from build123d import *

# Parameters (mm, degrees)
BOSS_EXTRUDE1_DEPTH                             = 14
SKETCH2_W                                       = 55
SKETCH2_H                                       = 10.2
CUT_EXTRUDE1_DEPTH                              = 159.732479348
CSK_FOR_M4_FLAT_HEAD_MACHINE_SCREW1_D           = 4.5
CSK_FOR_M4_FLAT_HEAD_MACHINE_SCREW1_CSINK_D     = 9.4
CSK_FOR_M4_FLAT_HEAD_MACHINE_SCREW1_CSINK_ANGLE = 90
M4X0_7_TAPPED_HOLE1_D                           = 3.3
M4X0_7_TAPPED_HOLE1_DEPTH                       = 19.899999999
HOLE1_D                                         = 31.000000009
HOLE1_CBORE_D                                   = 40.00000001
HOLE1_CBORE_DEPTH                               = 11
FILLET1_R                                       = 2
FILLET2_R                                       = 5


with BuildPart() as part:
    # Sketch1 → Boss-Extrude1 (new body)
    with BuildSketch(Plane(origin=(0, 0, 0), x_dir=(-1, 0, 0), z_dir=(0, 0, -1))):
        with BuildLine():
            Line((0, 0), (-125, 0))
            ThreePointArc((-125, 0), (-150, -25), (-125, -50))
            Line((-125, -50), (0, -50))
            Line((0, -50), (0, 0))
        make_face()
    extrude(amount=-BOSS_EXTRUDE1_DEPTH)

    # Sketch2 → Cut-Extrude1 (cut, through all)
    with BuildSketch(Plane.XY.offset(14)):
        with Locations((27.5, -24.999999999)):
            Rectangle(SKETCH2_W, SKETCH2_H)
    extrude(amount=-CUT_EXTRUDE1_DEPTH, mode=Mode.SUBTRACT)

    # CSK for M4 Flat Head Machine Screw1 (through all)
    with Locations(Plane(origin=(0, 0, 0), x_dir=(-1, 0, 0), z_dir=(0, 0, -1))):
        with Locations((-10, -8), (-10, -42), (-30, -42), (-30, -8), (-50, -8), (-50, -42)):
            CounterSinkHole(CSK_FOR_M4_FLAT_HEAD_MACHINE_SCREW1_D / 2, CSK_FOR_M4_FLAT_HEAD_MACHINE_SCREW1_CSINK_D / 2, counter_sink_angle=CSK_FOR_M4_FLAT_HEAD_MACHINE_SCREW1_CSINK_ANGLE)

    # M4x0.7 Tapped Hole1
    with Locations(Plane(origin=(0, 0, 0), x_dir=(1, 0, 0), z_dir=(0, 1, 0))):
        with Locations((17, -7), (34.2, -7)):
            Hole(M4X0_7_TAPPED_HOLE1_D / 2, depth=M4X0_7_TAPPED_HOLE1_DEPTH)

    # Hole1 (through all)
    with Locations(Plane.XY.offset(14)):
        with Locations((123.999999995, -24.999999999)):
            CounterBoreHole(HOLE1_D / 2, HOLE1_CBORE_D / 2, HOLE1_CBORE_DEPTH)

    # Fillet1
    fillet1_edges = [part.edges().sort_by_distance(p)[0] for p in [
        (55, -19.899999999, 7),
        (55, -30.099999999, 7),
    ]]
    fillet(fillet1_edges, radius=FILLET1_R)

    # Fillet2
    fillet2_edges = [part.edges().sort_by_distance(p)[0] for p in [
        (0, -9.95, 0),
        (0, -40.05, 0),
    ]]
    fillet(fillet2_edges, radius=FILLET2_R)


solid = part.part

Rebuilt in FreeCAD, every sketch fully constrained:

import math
import FreeCAD as App
import Part
import Sketcher
from FreeCAD import Vector
Q = App.Units.Quantity


def edges_at(feature, points):
    """Names of the edges that pass closest to the given points."""
    edges = feature.Shape.Edges
    near = lambda p: min(range(len(edges)), key=lambda i: edges[i].distToShape(Part.Vertex(*p))[0])
    return sorted({f"Edge{near(p) + 1}" for p in points})

doc = App.newDocument("Part")
body = doc.addObject("PartDesign::Body", "Body")

# Sketch on XY plane
sketch1 = body.newObject("Sketcher::SketchObject", "Sketch")
sketch1.AttachmentSupport = (doc.getObject("XY_Plane"), [""])
sketch1.MapMode = "FlatFace"
sketch1.addGeometry([
    Part.LineSegment(Vector(0, 0, 0), Vector(125, 0, 0)),
    Part.ArcOfCircle(Part.Circle(Vector(125, -25, 0), Vector(0, 0, 1), 25), math.radians(-90), math.radians(90)),
    Part.LineSegment(Vector(125, -50, 0), Vector(0, -50, 0)),
    Part.LineSegment(Vector(0, -50, 0), Vector(0, 0, 0)),
], False)
sketch1.addConstraint([
    Sketcher.Constraint("Tangent", 0, 2, 1, 2),
    Sketcher.Constraint("Tangent", 1, 1, 2, 1),
    Sketcher.Constraint("Coincident", 2, 2, 3, 1),
    Sketcher.Constraint("Coincident", 3, 2, 0, 1),
    Sketcher.Constraint("Horizontal", 0),
    Sketcher.Constraint("Horizontal", 2),
    Sketcher.Constraint("Vertical", 3),
    Sketcher.Constraint("Coincident", 3, 2, -1, 1),
    Sketcher.Constraint("Radius", 1, Q("25 mm")),
    Sketcher.Constraint("DistanceX", 0, 1, 0, 2, Q("125 mm")),
])
pad1 = body.newObject("PartDesign::Pad", "Pad")
pad1.Profile = sketch1
pad1.Length = 14

# Sketch on XY plane
sketch2 = body.newObject("Sketcher::SketchObject", "Sketch001")
sketch2.AttachmentSupport = (doc.getObject("XY_Plane"), [""])
sketch2.MapMode = "FlatFace"
sketch2.AttachmentOffset = App.Placement(Vector(0, 0, 14), App.Rotation())
sketch2.addGeometry([
    Part.LineSegment(Vector(0, -20, 0), Vector(0, -30, 0)),
    Part.LineSegment(Vector(0, -30, 0), Vector(55, -30, 0)),
    Part.LineSegment(Vector(55, -30, 0), Vector(55, -20, 0)),
    Part.LineSegment(Vector(55, -20, 0), Vector(0, -20, 0)),
], False)
sketch2.addConstraint([
    Sketcher.Constraint("Coincident", 0, 2, 1, 1),
    Sketcher.Constraint("Coincident", 1, 2, 2, 1),
    Sketcher.Constraint("Coincident", 2, 2, 3, 1),
    Sketcher.Constraint("Coincident", 3, 2, 0, 1),
    Sketcher.Constraint("Vertical", 0),
    Sketcher.Constraint("Horizontal", 1),
    Sketcher.Constraint("Vertical", 2),
    Sketcher.Constraint("Horizontal", 3),
    Sketcher.Constraint("PointOnObject", 0, 2, -2),
    Sketcher.Constraint("DistanceX", 1, 1, 1, 2, Q("55 mm")),
    Sketcher.Constraint("DistanceY", 0, 2, 0, 1, Q("10.2 mm")),
    Sketcher.Constraint("DistanceY", 0, 2, -1, 1, Q("30.1 mm")),
])
pocket1 = body.newObject("PartDesign::Pocket", "Pocket")
pocket1.Profile = sketch2
pocket1.Type = "ThroughAll"

# Sketch on XY plane
sketch3 = body.newObject("Sketcher::SketchObject", "Sketch002")
sketch3.AttachmentSupport = (doc.getObject("XY_Plane"), [""])
sketch3.MapMode = "FlatFace"
sketch3.addGeometry([
    Part.Circle(Vector(10, -8, 0), Vector(0, 0, 1), 2.2),  # 0
    Part.Circle(Vector(10, -42, 0), Vector(0, 0, 1), 2.2),  # 1
    Part.Circle(Vector(30, -42, 0), Vector(0, 0, 1), 2.2),  # 2
    Part.Circle(Vector(30, -8, 0), Vector(0, 0, 1), 2.2),  # 3
    Part.Circle(Vector(50, -8, 0), Vector(0, 0, 1), 2.2),  # 4
    Part.Circle(Vector(50, -42, 0), Vector(0, 0, 1), 2.2),  # 5
], False)
sketch3.addConstraint([
    Sketcher.Constraint("Equal", 0, 1),
    Sketcher.Constraint("Equal", 1, 2),
    Sketcher.Constraint("Equal", 2, 3),
    Sketcher.Constraint("Equal", 3, 4),
    Sketcher.Constraint("Equal", 4, 5),
    Sketcher.Constraint("Horizontal", 1, 3, 2, 3),
    Sketcher.Constraint("Horizontal", 0, 3, 3, 3),
    Sketcher.Constraint("Horizontal", 3, 3, 4, 3),
    Sketcher.Constraint("Horizontal", 2, 3, 5, 3),
    Sketcher.Constraint("Vertical", 0, 3, 1, 3),
    Sketcher.Constraint("Vertical", 2, 3, 3, 3),
    Sketcher.Constraint("Vertical", 4, 3, 5, 3),
    Sketcher.Constraint("Diameter", 0, Q("4.5 mm")),
    Sketcher.Constraint("DistanceX", -1, 1, 0, 3, Q("10 mm")),
    Sketcher.Constraint("DistanceY", 0, 3, -1, 1, Q("8 mm")),
    Sketcher.Constraint("DistanceY", 1, 3, -1, 1, Q("42 mm")),
    Sketcher.Constraint("DistanceX", -1, 1, 2, 3, Q("30 mm")),
    Sketcher.Constraint("DistanceX", -1, 1, 4, 3, Q("50 mm")),
])
doc.recompute()
hole = body.newObject("PartDesign::Hole", "Hole")
hole.Profile = sketch3
hole.ThreadType = "None"
hole.Diameter = 4.5
hole.DepthType = "ThroughAll"
hole.HoleCutType = "Countersink"
hole.HoleCutDiameter = 9.4
hole.HoleCutCountersinkAngle = 90
hole.Reversed = True

# Sketch on XZ plane
sketch4 = body.newObject("Sketcher::SketchObject", "Sketch003")
sketch4.AttachmentSupport = (doc.getObject("XZ_Plane"), [""])
sketch4.MapMode = "FlatFace"
sketch4.addGeometry([
    Part.Circle(Vector(17, 7, 0), Vector(0, 0, 1), 1.6),
    Part.Circle(Vector(34.2, 7, 0), Vector(0, 0, 1), 1.6),
], False)
sketch4.addConstraint([
    Sketcher.Constraint("Equal", 0, 1),
    Sketcher.Constraint("Horizontal", 0, 3, 1, 3),
    Sketcher.Constraint("Diameter", 0, Q("3.3 mm")),
    Sketcher.Constraint("DistanceX", -1, 1, 0, 3, Q("17 mm")),
    Sketcher.Constraint("DistanceY", -1, 1, 0, 3, Q("7 mm")),
    Sketcher.Constraint("DistanceX", -1, 1, 1, 3, Q("34.2 mm")),
])
doc.recompute()
hole2 = body.newObject("PartDesign::Hole", "Hole001")
hole2.Profile = sketch4
hole2.ThreadType = "None"
hole2.Diameter = 3.3
hole2.DepthType = "Dimension"
hole2.Depth = 19.9
hole2.DrillPoint = "Flat"
hole2.Reversed = True

# Sketch on XY plane
sketch5 = body.newObject("Sketcher::SketchObject", "Sketch004")
sketch5.AttachmentSupport = (doc.getObject("XY_Plane"), [""])
sketch5.MapMode = "FlatFace"
sketch5.AttachmentOffset = App.Placement(Vector(0, 0, 14), App.Rotation())
sketch5.addGeometry(Part.Circle(Vector(124, -25, 0), Vector(0, 0, 1), 16), False)
sketch5.addConstraint([
    Sketcher.Constraint("Diameter", 0, Q("31 mm")),
    Sketcher.Constraint("DistanceX", -1, 1, 0, 3, Q("124 mm")),
    Sketcher.Constraint("DistanceY", 0, 3, -1, 1, Q("25 mm")),
])
doc.recompute()
hole3 = body.newObject("PartDesign::Hole", "Hole002")
hole3.Profile = sketch5
hole3.ThreadType = "None"
hole3.Diameter = 31
hole3.DepthType = "ThroughAll"
hole3.HoleCutType = "Counterbore"
hole3.HoleCutDiameter = 40
hole3.HoleCutDepth = 11
doc.recompute()

fillet = body.newObject("PartDesign::Fillet", "Fillet")
fillet.Base = (hole3, edges_at(hole3, [(55, -19.9, 7), (55, -30.1, 7)]))
fillet.Radius = 2
doc.recompute()

fillet2 = body.newObject("PartDesign::Fillet", "Fillet001")
fillet2.Base = (fillet, edges_at(fillet, [(0, -9.95, 0), (0, -40.05, 0)]))
fillet2.Radius = 5

doc.recompute()
